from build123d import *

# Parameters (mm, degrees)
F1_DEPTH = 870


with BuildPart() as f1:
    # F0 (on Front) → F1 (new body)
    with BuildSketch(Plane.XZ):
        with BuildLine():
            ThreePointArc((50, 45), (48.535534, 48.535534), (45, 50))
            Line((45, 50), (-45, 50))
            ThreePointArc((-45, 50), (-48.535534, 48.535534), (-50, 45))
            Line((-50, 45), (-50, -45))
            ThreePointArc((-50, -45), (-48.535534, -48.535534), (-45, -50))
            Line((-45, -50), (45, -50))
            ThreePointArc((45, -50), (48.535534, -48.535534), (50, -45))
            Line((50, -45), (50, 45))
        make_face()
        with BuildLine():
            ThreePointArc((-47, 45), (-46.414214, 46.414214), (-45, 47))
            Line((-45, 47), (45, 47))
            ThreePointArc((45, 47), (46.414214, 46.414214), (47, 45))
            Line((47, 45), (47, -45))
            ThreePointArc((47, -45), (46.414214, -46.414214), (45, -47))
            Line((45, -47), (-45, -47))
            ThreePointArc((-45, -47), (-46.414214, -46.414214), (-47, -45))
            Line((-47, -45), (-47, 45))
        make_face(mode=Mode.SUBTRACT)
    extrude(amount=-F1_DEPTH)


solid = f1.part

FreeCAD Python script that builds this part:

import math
import FreeCAD as App
import Part
import Sketcher
Q = App.Units.Quantity

doc = App.newDocument("Part")
body = doc.addObject("PartDesign::Body", "Body")

# Sketch on XZ plane
sketch1 = body.newObject("Sketcher::SketchObject", "Sketch")
sketch1.AttachmentSupport = (doc.getObject("XZ_Plane"), [""])
sketch1.MapMode = "FlatFace"
sketch1.addGeometry(Part.ArcOfCircle(Part.Circle(App.Vector(45, 45, 0), App.Vector(0, 0, 1), 5), math.radians(-0.000004), math.radians(90.000004)), False)
sketch1.addGeometry(Part.LineSegment(App.Vector(45, 50, 0), App.Vector(-45, 50, 0)), False)
sketch1.addGeometry(Part.ArcOfCircle(Part.Circle(App.Vector(-45, 45, 0), App.Vector(0, 0, 1), 5), math.radians(89.999996), math.radians(180.000004)), False)
sketch1.addGeometry(Part.LineSegment(App.Vector(-50, 45, 0), App.Vector(-50, -45, 0)), False)
sketch1.addGeometry(Part.ArcOfCircle(Part.Circle(App.Vector(-45, -45, 0), App.Vector(0, 0, 1), 5), math.radians(179.999996), math.radians(270.000004)), False)
sketch1.addGeometry(Part.LineSegment(App.Vector(-45, -50, 0), App.Vector(45, -50, 0)), False)
sketch1.addGeometry(Part.ArcOfCircle(Part.Circle(App.Vector(45, -45, 0), App.Vector(0, 0, 1), 5), math.radians(-90.000004), math.radians(0.000004)), False)
sketch1.addGeometry(Part.LineSegment(App.Vector(50, -45, 0), App.Vector(50, 45, 0)), False)
sketch1.addGeometry(Part.LineSegment(App.Vector(-47, -45, 0), App.Vector(-47, 45, 0)), False)
sketch1.addGeometry(Part.ArcOfCircle(Part.Circle(App.Vector(-45.000001, 45.000001, 0), App.Vector(0, 0, 1), 1.999999), math.radians(89.999957), math.radians(180.000043)), False)
sketch1.addGeometry(Part.LineSegment(App.Vector(-45, 47, 0), App.Vector(45, 47, 0)), False)
sketch1.addGeometry(Part.ArcOfCircle(Part.Circle(App.Vector(45.000001, 45.000001, 0), App.Vector(0, 0, 1), 1.999999), math.radians(-0.000043), math.radians(90.000043)), False)
sketch1.addGeometry(Part.LineSegment(App.Vector(47, 45, 0), App.Vector(47, -45, 0)), False)
sketch1.addGeometry(Part.ArcOfCircle(Part.Circle(App.Vector(45.000001, -45.000001, 0), App.Vector(0, 0, 1), 1.999999), math.radians(-90.000043), math.radians(0.000043)), False)
sketch1.addGeometry(Part.LineSegment(App.Vector(45, -47, 0), App.Vector(-45, -47, 0)), False)
sketch1.addGeometry(Part.ArcOfCircle(Part.Circle(App.Vector(-45.000001, -45.000001, 0), App.Vector(0, 0, 1), 1.999999), math.radians(179.999957), math.radians(270.000043)), False)
sketch1.addConstraint(Sketcher.Constraint("Tangent", 0, 2, 1, 1))
sketch1.addConstraint(Sketcher.Constraint("Tangent", 1, 2, 2, 1))
sketch1.addConstraint(Sketcher.Constraint("Tangent", 2, 2, 3, 1))
sketch1.addConstraint(Sketcher.Constraint("Tangent", 3, 2, 4, 1))
sketch1.addConstraint(Sketcher.Constraint("Tangent", 4, 2, 5, 1))
sketch1.addConstraint(Sketcher.Constraint("Tangent", 5, 2, 6, 1))
sketch1.addConstraint(Sketcher.Constraint("Tangent", 6, 2, 7, 1))
sketch1.addConstraint(Sketcher.Constraint("Tangent", 7, 2, 0, 1))
sketch1.addConstraint(Sketcher.Constraint("Tangent", 8, 2, 9, 2))
sketch1.addConstraint(Sketcher.Constraint("Tangent", 9, 1, 10, 1))
sketch1.addConstraint(Sketcher.Constraint("Tangent", 10, 2, 11, 2))
sketch1.addConstraint(Sketcher.Constraint("Tangent", 11, 1, 12, 1))
sketch1.addConstraint(Sketcher.Constraint("Tangent", 12, 2, 13, 2))
sketch1.addConstraint(Sketcher.Constraint("Tangent", 13, 1, 14, 1))
sketch1.addConstraint(Sketcher.Constraint("Tangent", 14, 2, 15, 2))
sketch1.addConstraint(Sketcher.Constraint("Tangent", 15, 1, 8, 1))
sketch1.addConstraint(Sketcher.Constraint("Horizontal", 1))
sketch1.addConstraint(Sketcher.Constraint("Vertical", 3))
sketch1.addConstraint(Sketcher.Constraint("Horizontal", 5))
sketch1.addConstraint(Sketcher.Constraint("Vertical", 7))
sketch1.addConstraint(Sketcher.Constraint("Vertical", 8))
sketch1.addConstraint(Sketcher.Constraint("Horizontal", 10))
sketch1.addConstraint(Sketcher.Constraint("Vertical", 12))
sketch1.addConstraint(Sketcher.Constraint("Horizontal", 14))
sketch1.addConstraint(Sketcher.Constraint("Coincident", 9, 3, 2, 3))
sketch1.addConstraint(Sketcher.Constraint("Coincident", 11, 3, 0, 3))
sketch1.addConstraint(Sketcher.Constraint("Coincident", 13, 3, 6, 3))
sketch1.addConstraint(Sketcher.Constraint("Equal", 0, 2))
sketch1.addConstraint(Sketcher.Constraint("Equal", 2, 4))
sketch1.addConstraint(Sketcher.Constraint("Equal", 4, 6))
sketch1.addConstraint(Sketcher.Constraint("Equal", 13, 15))
sketch1.addConstraint(Sketcher.Constraint("Symmetric", 0, 3, 4, 3, -1, 1))
sketch1.addConstraint(Sketcher.Constraint("Equal", 14, 3))
sketch1.addConstraint(Sketcher.Constraint("Radius", 0, Q("5 mm")))
sketch1.addConstraint(Sketcher.Constraint("Radius", 9, Q("1.999999 mm")))
sketch1.addConstraint(Sketcher.Constraint("DistanceX", 1, 2, 1, 1, Q("90 mm")))
pad1 = body.newObject("PartDesign::Pad", "Pad")
pad1.Profile = sketch1
pad1.Length = 870
pad1.Reversed = True

doc.recompute()
